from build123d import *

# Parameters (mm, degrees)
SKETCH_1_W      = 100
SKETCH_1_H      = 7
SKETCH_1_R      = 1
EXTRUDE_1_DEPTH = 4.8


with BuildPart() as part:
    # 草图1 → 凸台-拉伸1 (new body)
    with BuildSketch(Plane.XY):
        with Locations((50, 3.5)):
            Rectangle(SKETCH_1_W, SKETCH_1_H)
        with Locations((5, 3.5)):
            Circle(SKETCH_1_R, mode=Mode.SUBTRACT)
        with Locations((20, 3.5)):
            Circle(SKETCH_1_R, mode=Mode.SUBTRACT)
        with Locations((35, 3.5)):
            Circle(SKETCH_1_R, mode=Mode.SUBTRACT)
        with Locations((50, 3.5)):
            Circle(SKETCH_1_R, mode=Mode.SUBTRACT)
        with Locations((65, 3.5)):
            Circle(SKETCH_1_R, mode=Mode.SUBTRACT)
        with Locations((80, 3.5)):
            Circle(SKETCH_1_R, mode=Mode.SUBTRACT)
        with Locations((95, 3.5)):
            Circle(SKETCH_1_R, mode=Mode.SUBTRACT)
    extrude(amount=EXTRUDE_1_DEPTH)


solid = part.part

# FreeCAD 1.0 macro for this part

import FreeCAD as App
import Part
import Sketcher
from FreeCAD import Vector
Q = App.Units.Quantity

doc = App.newDocument("Part")
body = doc.addObject("PartDesign::Body", "Body")

sketch1 = doc.addObject("Sketcher::SketchObject", "Sketch")
body.addObject(sketch1)
sketch1.AttachmentSupport = (doc.XY_Plane, [""])
sketch1.MapMode = "FlatFace"
sketch1.addGeometry([
    Part.LineSegment(Vector(0, 7, 0), Vector(0, 0, 0)),
    Part.LineSegment(Vector(0, 0, 0), Vector(100, 0, 0)),
    Part.LineSegment(Vector(100, 0, 0), Vector(100, 7, 0)),
    Part.LineSegment(Vector(100, 7, 0), Vector(0, 7, 0)),
    Part.Circle(Vector(5, 3.5, 0), Vector(0, 0, 1), 1),
    Part.Circle(Vector(20, 3.5, 0), Vector(0, 0, 1), 1),
    Part.Circle(Vector(35, 3.5, 0), Vector(0, 0, 1), 1),
    Part.Circle(Vector(50, 3.5, 0), Vector(0, 0, 1), 1),
    Part.Circle(Vector(65, 3.5, 0), Vector(0, 0, 1), 1),
    Part.Circle(Vector(80, 3.5, 0), Vector(0, 0, 1), 1),
    Part.Circle(Vector(95, 3.5, 0), Vector(0, 0, 1), 1),
], False)
sketch1.addConstraint([
    Sketcher.Constraint("Coincident", 0, 2, 1, 1),
    Sketcher.Constraint("Coincident", 1, 2, 2, 1),
    Sketcher.Constraint("Coincident", 2, 2, 3, 1),
    Sketcher.Constraint("Coincident", 3, 2, 0, 1),
    Sketcher.Constraint("Vertical", 0),
    Sketcher.Constraint("Horizontal", 1),
    Sketcher.Constraint("Vertical", 2),
    Sketcher.Constraint("Horizontal", 3),
    Sketcher.Constraint("Coincident", 0, 2, -1, 1),
    Sketcher.Constraint("Equal", 4, 5),
    Sketcher.Constraint("Equal", 5, 6),
    Sketcher.Constraint("Equal", 6, 7),
    Sketcher.Constraint("Equal", 7, 8),
    Sketcher.Constraint("Equal", 8, 9),
    Sketcher.Constraint("Equal", 9, 10),
    Sketcher.Constraint("Horizontal", 4, 3, 5, 3),
    Sketcher.Constraint("Horizontal", 5, 3, 6, 3),
    Sketcher.Constraint("Horizontal", 6, 3, 7, 3),
    Sketcher.Constraint("Horizontal", 7, 3, 8, 3),
    Sketcher.Constraint("Horizontal", 8, 3, 9, 3),
    Sketcher.Constraint("Horizontal", 9, 3, 10, 3),
    Sketcher.Constraint("Diameter", 4, Q("2 mm")),
    Sketcher.Constraint("DistanceX", 1, 1, 1, 2, Q("100 mm")),
    Sketcher.Constraint("DistanceY", 0, 2, 0, 1, Q("7 mm")),
    Sketcher.Constraint("DistanceX", -1, 1, 4, 3, Q("5 mm")),
    Sketcher.Constraint("DistanceX", -1, 1, 5, 3, Q("20 mm")),
    Sketcher.Constraint("DistanceX", -1, 1, 6, 3, Q("35 mm")),
    Sketcher.Constraint("DistanceX", -1, 1, 7, 3, Q("50 mm")),
    Sketcher.Constraint("DistanceX", -1, 1, 8, 3, Q("65 mm")),
    Sketcher.Constraint("DistanceX", -1, 1, 9, 3, Q("80 mm")),
    Sketcher.Constraint("DistanceX", -1, 1, 10, 3, Q("95 mm")),
    Sketcher.Constraint("DistanceY", -1, 1, 4, 3, Q("3.5 mm")),
])
pad1 = doc.addObject("PartDesign::Pad", "Pad")
body.addObject(pad1)
pad1.Profile = sketch1
pad1.Length = 4.8

doc.recompute()
